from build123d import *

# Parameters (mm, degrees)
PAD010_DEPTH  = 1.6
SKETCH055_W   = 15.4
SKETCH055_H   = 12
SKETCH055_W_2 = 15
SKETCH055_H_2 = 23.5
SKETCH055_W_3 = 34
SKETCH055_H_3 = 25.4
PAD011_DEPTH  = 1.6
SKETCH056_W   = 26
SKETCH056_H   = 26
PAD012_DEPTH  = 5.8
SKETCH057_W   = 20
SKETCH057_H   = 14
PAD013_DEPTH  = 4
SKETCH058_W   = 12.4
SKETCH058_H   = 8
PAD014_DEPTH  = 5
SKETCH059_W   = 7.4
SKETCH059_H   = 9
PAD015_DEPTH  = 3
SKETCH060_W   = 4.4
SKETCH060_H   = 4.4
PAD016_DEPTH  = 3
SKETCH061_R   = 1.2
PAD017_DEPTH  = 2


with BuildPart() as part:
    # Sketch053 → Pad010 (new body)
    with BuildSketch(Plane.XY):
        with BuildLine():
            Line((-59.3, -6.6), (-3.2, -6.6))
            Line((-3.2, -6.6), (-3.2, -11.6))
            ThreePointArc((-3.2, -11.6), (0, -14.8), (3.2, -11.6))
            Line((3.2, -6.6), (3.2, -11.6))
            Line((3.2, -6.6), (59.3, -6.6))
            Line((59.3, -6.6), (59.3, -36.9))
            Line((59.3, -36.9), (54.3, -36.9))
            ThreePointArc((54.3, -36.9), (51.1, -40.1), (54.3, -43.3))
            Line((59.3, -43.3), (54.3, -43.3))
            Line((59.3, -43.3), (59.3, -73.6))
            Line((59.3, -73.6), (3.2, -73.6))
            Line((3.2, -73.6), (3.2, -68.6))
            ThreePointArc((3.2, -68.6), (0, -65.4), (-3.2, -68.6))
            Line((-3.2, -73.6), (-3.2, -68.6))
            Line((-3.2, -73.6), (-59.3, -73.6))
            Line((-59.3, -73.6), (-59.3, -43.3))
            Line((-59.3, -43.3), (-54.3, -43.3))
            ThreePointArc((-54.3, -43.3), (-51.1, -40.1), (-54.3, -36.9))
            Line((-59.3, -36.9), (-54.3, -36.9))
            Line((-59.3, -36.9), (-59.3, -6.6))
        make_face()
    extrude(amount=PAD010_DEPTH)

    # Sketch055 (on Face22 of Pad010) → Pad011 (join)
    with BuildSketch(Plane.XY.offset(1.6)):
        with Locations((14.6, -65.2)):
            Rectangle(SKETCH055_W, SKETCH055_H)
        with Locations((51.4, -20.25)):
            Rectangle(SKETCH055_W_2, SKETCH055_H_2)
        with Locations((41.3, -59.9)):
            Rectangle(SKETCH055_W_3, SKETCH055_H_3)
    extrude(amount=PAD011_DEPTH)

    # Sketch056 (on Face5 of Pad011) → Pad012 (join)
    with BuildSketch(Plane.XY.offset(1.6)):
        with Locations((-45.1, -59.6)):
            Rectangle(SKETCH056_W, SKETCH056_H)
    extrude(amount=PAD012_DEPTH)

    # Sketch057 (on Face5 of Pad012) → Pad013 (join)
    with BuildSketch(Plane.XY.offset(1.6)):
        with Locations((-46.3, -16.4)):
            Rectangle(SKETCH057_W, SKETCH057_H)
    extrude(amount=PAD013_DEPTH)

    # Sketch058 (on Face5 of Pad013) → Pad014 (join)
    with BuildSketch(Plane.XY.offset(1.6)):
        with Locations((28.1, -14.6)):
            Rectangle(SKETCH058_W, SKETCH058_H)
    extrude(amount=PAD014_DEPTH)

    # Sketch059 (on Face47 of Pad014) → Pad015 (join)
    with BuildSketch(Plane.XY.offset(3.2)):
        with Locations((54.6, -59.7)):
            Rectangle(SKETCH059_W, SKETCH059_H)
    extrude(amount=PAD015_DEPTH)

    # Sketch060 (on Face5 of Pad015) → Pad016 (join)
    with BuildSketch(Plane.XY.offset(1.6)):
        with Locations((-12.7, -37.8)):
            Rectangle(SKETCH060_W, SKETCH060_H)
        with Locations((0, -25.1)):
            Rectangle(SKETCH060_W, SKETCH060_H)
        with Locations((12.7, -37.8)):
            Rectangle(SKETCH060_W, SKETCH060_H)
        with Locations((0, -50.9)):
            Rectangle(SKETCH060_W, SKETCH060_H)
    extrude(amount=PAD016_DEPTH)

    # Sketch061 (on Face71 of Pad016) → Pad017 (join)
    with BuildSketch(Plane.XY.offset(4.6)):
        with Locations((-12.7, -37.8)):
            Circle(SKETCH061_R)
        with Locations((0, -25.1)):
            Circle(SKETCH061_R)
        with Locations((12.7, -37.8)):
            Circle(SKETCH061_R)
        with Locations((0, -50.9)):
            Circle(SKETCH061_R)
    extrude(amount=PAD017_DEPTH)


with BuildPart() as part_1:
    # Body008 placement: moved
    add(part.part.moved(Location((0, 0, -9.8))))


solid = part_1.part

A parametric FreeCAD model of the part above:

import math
import FreeCAD as App
import Part
import Sketcher

V = App.Vector
Q = App.Units.Quantity

doc = App.newDocument("Part")
body = doc.addObject("PartDesign::Body", "Body")

sketch1 = body.newObject("Sketcher::SketchObject", "Sketch")
sketch1.AttachmentSupport = (doc.getObject("XY_Plane"), [""])
sketch1.MapMode = "FlatFace"
sketch1.addGeometry([
    Part.LineSegment(V(-3.2, -6.6, 0), V(-59.3, -6.6, 0)),
    Part.LineSegment(V(-59.3, -6.6, 0), V(-59.3, -36.9, 0)),
    Part.LineSegment(V(-59.3, -36.9, 0), V(-54.3, -36.9, 0)),
    Part.ArcOfCircle(Part.Circle(V(-54.3, -40.1, 0), V(0, 0, 1), 3.2), math.radians(-90), math.radians(90)),
    Part.LineSegment(V(-54.3, -43.3, 0), V(-59.3, -43.3, 0)),
    Part.LineSegment(V(-59.3, -43.3, 0), V(-59.3, -73.6, 0)),
    Part.LineSegment(V(-59.3, -73.6, 0), V(-3.2, -73.6, 0)),
    Part.LineSegment(V(-3.2, -73.6, 0), V(-3.2, -68.6, 0)),
    Part.ArcOfCircle(Part.Circle(V(0, -68.6, 0), V(0, 0, 1), 3.2), math.radians(0), math.radians(180)),
    Part.LineSegment(V(3.2, -68.6, 0), V(3.2, -73.6, 0)),
    Part.LineSegment(V(3.2, -73.6, 0), V(59.3, -73.6, 0)),
    Part.LineSegment(V(59.3, -73.6, 0), V(59.3, -43.3, 0)),
    Part.LineSegment(V(59.3, -43.3, 0), V(54.3, -43.3, 0)),
    Part.ArcOfCircle(Part.Circle(V(54.3, -40.1, 0), V(0, 0, 1), 3.2), math.radians(90), math.radians(270)),
    Part.LineSegment(V(54.3, -36.9, 0), V(59.3, -36.9, 0)),
    Part.LineSegment(V(59.3, -36.9, 0), V(59.3, -6.6, 0)),
    Part.LineSegment(V(59.3, -6.6, 0), V(3.2, -6.6, 0)),
    Part.LineSegment(V(3.2, -6.6, 0), V(3.2, -11.6, 0)),
    Part.ArcOfCircle(Part.Circle(V(0, -11.6, 0), V(0, 0, 1), 3.2), math.radians(180), math.radians(360)),
    Part.LineSegment(V(-3.2, -11.6, 0), V(-3.2, -6.6, 0)),
], False)
sketch1.addConstraint([
    Sketcher.Constraint("Coincident", 0, 2, 1, 1),
    Sketcher.Constraint("Coincident", 1, 2, 2, 1),
    Sketcher.Constraint("Tangent", 2, 2, 3, 2),
    Sketcher.Constraint("Tangent", 3, 1, 4, 1),
    Sketcher.Constraint("Coincident", 4, 2, 5, 1),
    Sketcher.Constraint("Coincident", 5, 2, 6, 1),
    Sketcher.Constraint("Coincident", 6, 2, 7, 1),
    Sketcher.Constraint("Tangent", 7, 2, 8, 2),
    Sketcher.Constraint("Tangent", 8, 1, 9, 1),
    Sketcher.Constraint("Coincident", 9, 2, 10, 1),
    Sketcher.Constraint("Coincident", 10, 2, 11, 1),
    Sketcher.Constraint("Coincident", 11, 2, 12, 1),
    Sketcher.Constraint("Tangent", 12, 2, 13, 2),
    Sketcher.Constraint("Tangent", 13, 1, 14, 1),
    Sketcher.Constraint("Coincident", 14, 2, 15, 1),
    Sketcher.Constraint("Coincident", 15, 2, 16, 1),
    Sketcher.Constraint("Coincident", 16, 2, 17, 1),
    Sketcher.Constraint("Tangent", 17, 2, 18, 2),
    Sketcher.Constraint("Tangent", 18, 1, 19, 1),
    Sketcher.Constraint("Coincident", 19, 2, 0, 1),
    Sketcher.Constraint("Horizontal", 0),
    Sketcher.Constraint("Vertical", 1),
    Sketcher.Constraint("Horizontal", 2),
    Sketcher.Constraint("Horizontal", 4),
    Sketcher.Constraint("Vertical", 5),
    Sketcher.Constraint("Horizontal", 6),
    Sketcher.Constraint("Vertical", 7),
    Sketcher.Constraint("Vertical", 9),
    Sketcher.Constraint("Horizontal", 10),
    Sketcher.Constraint("Vertical", 11),
    Sketcher.Constraint("Horizontal", 12),
    Sketcher.Constraint("Horizontal", 14),
    Sketcher.Constraint("Vertical", 15),
    Sketcher.Constraint("Horizontal", 16),
    Sketcher.Constraint("Vertical", 17),
    Sketcher.Constraint("Vertical", 19),
    Sketcher.Constraint("Equal", 3, 8),
    Sketcher.Constraint("Equal", 8, 13),
    Sketcher.Constraint("Equal", 13, 18),
    Sketcher.Constraint("Symmetric", 3, 3, 13, 3, -2),
    Sketcher.Constraint("Symmetric", 6, 2, 9, 2, -2),
    Sketcher.Constraint("Symmetric", 0, 2, 15, 2, -2),
    Sketcher.Constraint("PointOnObject", 18, 3, -2),
    Sketcher.Constraint("Vertical", 1, 2, 4, 2),
    Sketcher.Constraint("Vertical", 11, 2, 14, 2),
    Sketcher.Constraint("Equal", 1, 5),
    Sketcher.Constraint("Equal", 14, 7),
    Sketcher.Constraint("Equal", 9, 17),
    Sketcher.Constraint("Radius", 3, Q("3.2 mm")),
    Sketcher.Constraint("DistanceX", 2, 1, 2, 2, Q("5 mm")),
    Sketcher.Constraint("DistanceX", 0, 2, 0, 1, Q("56.1 mm")),
    Sketcher.Constraint("DistanceY", 1, 2, 1, 1, Q("30.3 mm")),
    Sketcher.Constraint("DistanceY", 3, 3, -1, 1, Q("40.1 mm")),
])
pad1 = body.newObject("PartDesign::Pad", "Pad")
pad1.Profile = sketch1
pad1.Length = 1.6

sketch2 = body.newObject("Sketcher::SketchObject", "Sketch001")
sketch2.AttachmentSupport = (doc.getObject("XY_Plane"), [""])
sketch2.MapMode = "FlatFace"
sketch2.AttachmentOffset = App.Placement(V(0, 0, 1.6), App.Rotation())
sketch2.addGeometry([
    Part.LineSegment(V(7, -59, 0), V(7, -71, 0)),
    Part.LineSegment(V(7, -71, 0), V(22, -71, 0)),
    Part.LineSegment(V(22, -71, 0), V(22, -59, 0)),
    Part.LineSegment(V(22, -59, 0), V(7, -59, 0)),
    Part.LineSegment(V(44, -8, 0), V(44, -32, 0)),
    Part.LineSegment(V(44, -32, 0), V(59, -32, 0)),
    Part.LineSegment(V(59, -32, 0), V(59, -8, 0)),
    Part.LineSegment(V(59, -8, 0), V(44, -8, 0)),
    Part.LineSegment(V(24, -47, 0), V(24, -73, 0)),
    Part.LineSegment(V(24, -73, 0), V(58, -73, 0)),
    Part.LineSegment(V(58, -73, 0), V(58, -47, 0)),
    Part.LineSegment(V(58, -47, 0), V(24, -47, 0)),
], False)
sketch2.addConstraint([
    Sketcher.Constraint("Coincident", 0, 2, 1, 1),
    Sketcher.Constraint("Coincident", 1, 2, 2, 1),
    Sketcher.Constraint("Coincident", 2, 2, 3, 1),
    Sketcher.Constraint("Coincident", 3, 2, 0, 1),
    Sketcher.Constraint("Coincident", 4, 2, 5, 1),
    Sketcher.Constraint("Coincident", 5, 2, 6, 1),
    Sketcher.Constraint("Coincident", 6, 2, 7, 1),
    Sketcher.Constraint("Coincident", 7, 2, 4, 1),
    Sketcher.Constraint("Coincident", 8, 2, 9, 1),
    Sketcher.Constraint("Coincident", 9, 2, 10, 1),
    Sketcher.Constraint("Coincident", 10, 2, 11, 1),
    Sketcher.Constraint("Coincident", 11, 2, 8, 1),
    Sketcher.Constraint("Vertical", 0),
    Sketcher.Constraint("Horizontal", 1),
    Sketcher.Constraint("Vertical", 2),
    Sketcher.Constraint("Horizontal", 3),
    Sketcher.Constraint("Vertical", 4),
    Sketcher.Constraint("Horizontal", 5),
    Sketcher.Constraint("Vertical", 6),
    Sketcher.Constraint("Horizontal", 7),
    Sketcher.Constraint("Vertical", 8),
    Sketcher.Constraint("Horizontal", 9),
    Sketcher.Constraint("Vertical", 10),
    Sketcher.Constraint("Horizontal", 11),
    Sketcher.Constraint("DistanceX", 5, 1, 5, 2, Q("15 mm")),
    Sketcher.Constraint("DistanceX", 9, 1, 9, 2, Q("34 mm")),
    Sketcher.Constraint("DistanceY", 0, 2, 0, 1, Q("12 mm")),
    Sketcher.Constraint("DistanceX", 1, 1, 1, 2, Q("15.4 mm")),
    Sketcher.Constraint("DistanceY", 4, 2, 4, 1, Q("23.5 mm")),
    Sketcher.Constraint("DistanceY", 8, 2, 8, 1, Q("25.4 mm")),
    Sketcher.Constraint("DistanceY", 4, 2, -1, 1, Q("32 mm")),
    Sketcher.Constraint("DistanceX", 3, 2, 4, 2, Q("37 mm")),
    Sketcher.Constraint("DistanceX", 1, 2, 8, 2, Q("2 mm")),
    Sketcher.Constraint("DistanceY", 2, 2, 10, 2, Q("12 mm")),
    Sketcher.Constraint("DistanceX", -1, 1, 0, 2, Q("6.9 mm")),
    Sketcher.Constraint("DistanceY", 0, 2, -1, 1, Q("71.2 mm")),
])
pad2 = body.newObject("PartDesign::Pad", "Pad001")
pad2.Profile = sketch2
pad2.Length = 1.6

sketch3 = body.newObject("Sketcher::SketchObject", "Sketch002")
sketch3.AttachmentSupport = (doc.getObject("XY_Plane"), [""])
sketch3.MapMode = "FlatFace"
sketch3.AttachmentOffset = App.Placement(V(0, 0, 1.6), App.Rotation())
sketch3.addGeometry([
    Part.LineSegment(V(-58, -47, 0), V(-58, -73, 0)),
    Part.LineSegment(V(-58, -73, 0), V(-32, -73, 0)),
    Part.LineSegment(V(-32, -73, 0), V(-32, -47, 0)),
    Part.LineSegment(V(-32, -47, 0), V(-58, -47, 0)),
], False)
sketch3.addConstraint([
    Sketcher.Constraint("Coincident", 0, 2, 1, 1),
    Sketcher.Constraint("Coincident", 1, 2, 2, 1),
    Sketcher.Constraint("Coincident", 2, 2, 3, 1),
    Sketcher.Constraint("Coincident", 3, 2, 0, 1),
    Sketcher.Constraint("Vertical", 0),
    Sketcher.Constraint("Horizontal", 1),
    Sketcher.Constraint("Vertical", 2),
    Sketcher.Constraint("Horizontal", 3),
    Sketcher.Constraint("Equal", 3, 0),
    Sketcher.Constraint("DistanceX", 1, 1, 1, 2, Q("26 mm")),
    Sketcher.Constraint("DistanceX", 0, 2, -1, 1, Q("58.1 mm")),
    Sketcher.Constraint("DistanceY", 0, 2, -1, 1, Q("72.6 mm")),
])
pad3 = body.newObject("PartDesign::Pad", "Pad002")
pad3.Profile = sketch3
pad3.Length = 5.8

sketch4 = body.newObject("Sketcher::SketchObject", "Sketch003")
sketch4.AttachmentSupport = (doc.getObject("XY_Plane"), [""])
sketch4.MapMode = "FlatFace"
sketch4.AttachmentOffset = App.Placement(V(0, 0, 1.6), App.Rotation())
sketch4.addGeometry([
    Part.LineSegment(V(-56, -9, 0), V(-56, -23, 0)),
    Part.LineSegment(V(-56, -23, 0), V(-36, -23, 0)),
    Part.LineSegment(V(-36, -23, 0), V(-36, -9, 0)),
    Part.LineSegment(V(-36, -9, 0), V(-56, -9, 0)),
], False)
sketch4.addConstraint([
    Sketcher.Constraint("Coincident", 0, 2, 1, 1),
    Sketcher.Constraint("Coincident", 1, 2, 2, 1),
    Sketcher.Constraint("Coincident", 2, 2, 3, 1),
    Sketcher.Constraint("Coincident", 3, 2, 0, 1),
    Sketcher.Constraint("Vertical", 0),
    Sketcher.Constraint("Horizontal", 1),
    Sketcher.Constraint("Vertical", 2),
    Sketcher.Constraint("Horizontal", 3),
    Sketcher.Constraint("DistanceX", 1, 1, 1, 2, Q("20 mm")),
    Sketcher.Constraint("DistanceY", 0, 2, 0, 1, Q("14 mm")),
    Sketcher.Constraint("DistanceX", 0, 2, -1, 1, Q("56.3 mm")),
    Sketcher.Constraint("DistanceY", 0, 2, -1, 1, Q("23.4 mm")),
])
pad4 = body.newObject("PartDesign::Pad", "Pad003")
pad4.Profile = sketch4
pad4.Length = 4

sketch5 = body.newObject("Sketcher::SketchObject", "Sketch004")
sketch5.AttachmentSupport = (doc.getObject("XY_Plane"), [""])
sketch5.MapMode = "FlatFace"
sketch5.AttachmentOffset = App.Placement(V(0, 0, 1.6), App.Rotation())
sketch5.addGeometry([
    Part.LineSegment(V(22, -11, 0), V(22, -19, 0)),
    Part.LineSegment(V(22, -19, 0), V(34, -19, 0)),
    Part.LineSegment(V(34, -19, 0), V(34, -11, 0)),
    Part.LineSegment(V(34, -11, 0), V(22, -11, 0)),
], False)
sketch5.addConstraint([
    Sketcher.Constraint("Coincident", 0, 2, 1, 1),
    Sketcher.Constraint("Coincident", 1, 2, 2, 1),
    Sketcher.Constraint("Coincident", 2, 2, 3, 1),
    Sketcher.Constraint("Coincident", 3, 2, 0, 1),
    Sketcher.Constraint("Vertical", 0),
    Sketcher.Constraint("Horizontal", 1),
    Sketcher.Constraint("Vertical", 2),
    Sketcher.Constraint("Horizontal", 3),
    Sketcher.Constraint("DistanceY", 0, 2, 0, 1, Q("8 mm")),
    Sketcher.Constraint("DistanceX", 1, 1, 1, 2, Q("12.4 mm")),
    Sketcher.Constraint("DistanceX", -1, 1, 0, 2, Q("21.9 mm")),
    Sketcher.Constraint("DistanceY", 0, 2, -1, 1, Q("18.6 mm")),
])
pad5 = body.newObject("PartDesign::Pad", "Pad004")
pad5.Profile = sketch5
pad5.Length = 5

sketch6 = body.newObject("Sketcher::SketchObject", "Sketch005")
sketch6.AttachmentSupport = (doc.getObject("XY_Plane"), [""])
sketch6.MapMode = "FlatFace"
sketch6.AttachmentOffset = App.Placement(V(0, 0, 3.2), App.Rotation())
sketch6.addGeometry([
    Part.LineSegment(V(51, -55, 0), V(51, -64, 0)),
    Part.LineSegment(V(51, -64, 0), V(58, -64, 0)),
    Part.LineSegment(V(58, -64, 0), V(58, -55, 0)),
    Part.LineSegment(V(58, -55, 0), V(51, -55, 0)),
], False)
sketch6.addConstraint([
    Sketcher.Constraint("Coincident", 0, 2, 1, 1),
    Sketcher.Constraint("Coincident", 1, 2, 2, 1),
    Sketcher.Constraint("Coincident", 2, 2, 3, 1),
    Sketcher.Constraint("Coincident", 3, 2, 0, 1),
    Sketcher.Constraint("Vertical", 0),
    Sketcher.Constraint("Horizontal", 1),
    Sketcher.Constraint("Vertical", 2),
    Sketcher.Constraint("Horizontal", 3),
    Sketcher.Constraint("DistanceY", 0, 2, 0, 1, Q("9 mm")),
    Sketcher.Constraint("DistanceX", 1, 1, 1, 2, Q("7.4 mm")),
    Sketcher.Constraint("DistanceX", -1, 1, 0, 2, Q("50.9 mm")),
    Sketcher.Constraint("DistanceY", 0, 2, -1, 1, Q("64.2 mm")),
])
pad6 = body.newObject("PartDesign::Pad", "Pad005")
pad6.Profile = sketch6
pad6.Length = 3

sketch7 = body.newObject("Sketcher::SketchObject", "Sketch006")
sketch7.AttachmentSupport = (doc.getObject("XY_Plane"), [""])
sketch7.MapMode = "FlatFace"
sketch7.AttachmentOffset = App.Placement(V(0, 0, 1.6), App.Rotation())
sketch7.addGeometry([
    Part.LineSegment(V(-14.9, -35.6, 0), V(-14.9, -40, 0)),
    Part.LineSegment(V(-14.9, -40, 0), V(-10.5, -40, 0)),
    Part.LineSegment(V(-10.5, -40, 0), V(-10.5, -35.6, 0)),
    Part.LineSegment(V(-10.5, -35.6, 0), V(-14.9, -35.6, 0)),
    Part.LineSegment(V(-2.2, -22.9, 0), V(-2.2, -27.3, 0)),
    Part.LineSegment(V(-2.2, -27.3, 0), V(2.2, -27.3, 0)),
    Part.LineSegment(V(2.2, -27.3, 0), V(2.2, -22.9, 0)),
    Part.LineSegment(V(2.2, -22.9, 0), V(-2.2, -22.9, 0)),
    Part.LineSegment(V(10.5, -35.6, 0), V(10.5, -40, 0)),
    Part.LineSegment(V(10.5, -40, 0), V(14.9, -40, 0)),
    Part.LineSegment(V(14.9, -40, 0), V(14.9, -35.6, 0)),
    Part.LineSegment(V(14.9, -35.6, 0), V(10.5, -35.6, 0)),
    Part.LineSegment(V(-2.2, -48.7, 0), V(-2.2, -53.1, 0)),
    Part.LineSegment(V(-2.2, -53.1, 0), V(2.2, -53.1, 0)),
    Part.LineSegment(V(2.2, -53.1, 0), V(2.2, -48.7, 0)),
    Part.LineSegment(V(2.2, -48.7, 0), V(-2.2, -48.7, 0)),
], False)
sketch7.addConstraint([
    Sketcher.Constraint("Coincident", 0, 2, 1, 1),
    Sketcher.Constraint("Coincident", 1, 2, 2, 1),
    Sketcher.Constraint("Coincident", 2, 2, 3, 1),
    Sketcher.Constraint("Coincident", 3, 2, 0, 1),
    Sketcher.Constraint("Coincident", 4, 2, 5, 1),
    Sketcher.Constraint("Coincident", 5, 2, 6, 1),
    Sketcher.Constraint("Coincident", 6, 2, 7, 1),
    Sketcher.Constraint("Coincident", 7, 2, 4, 1),
    Sketcher.Constraint("Coincident", 8, 2, 9, 1),
    Sketcher.Constraint("Coincident", 9, 2, 10, 1),
    Sketcher.Constraint("Coincident", 10, 2, 11, 1),
    Sketcher.Constraint("Coincident", 11, 2, 8, 1),
    Sketcher.Constraint("Coincident", 12, 2, 13, 1),
    Sketcher.Constraint("Coincident", 13, 2, 14, 1),
    Sketcher.Constraint("Coincident", 14, 2, 15, 1),
    Sketcher.Constraint("Coincident", 15, 2, 12, 1),
    Sketcher.Constraint("Vertical", 0),
    Sketcher.Constraint("Horizontal", 1),
    Sketcher.Constraint("Vertical", 2),
    Sketcher.Constraint("Horizontal", 3),
    Sketcher.Constraint("Vertical", 4),
    Sketcher.Constraint("Horizontal", 5),
    Sketcher.Constraint("Vertical", 6),
    Sketcher.Constraint("Horizontal", 7),
    Sketcher.Constraint("Vertical", 8),
    Sketcher.Constraint("Horizontal", 9),
    Sketcher.Constraint("Vertical", 10),
    Sketcher.Constraint("Horizontal", 11),
    Sketcher.Constraint("Vertical", 12),
    Sketcher.Constraint("Horizontal", 13),
    Sketcher.Constraint("Vertical", 14),
    Sketcher.Constraint("Horizontal", 15),
    Sketcher.Constraint("Symmetric", 1, 2, 8, 2, -2),
    Sketcher.Constraint("Symmetric", 3, 2, 10, 2, -2),
    Sketcher.Constraint("Vertical", 7, 2, 12, 2),
    Sketcher.Constraint("Vertical", 6, 2, 13, 2),
    Sketcher.Constraint("Equal", 3, 5),
    Sketcher.Constraint("Equal", 15, 0),
    Sketcher.Constraint("Equal", 2, 4),
    Sketcher.Constraint("Equal", 10, 12),
    Sketcher.Constraint("DistanceX", 1, 1, 1, 2, Q("4.4 mm")),
    Sketcher.Constraint("DistanceY", 0, 2, -1, 1, Q("40 mm")),
    Sketcher.Constraint("DistanceX", 1, 2, 8, 2, Q("21 mm")),
    Sketcher.Constraint("DistanceX", 4, 2, -1, 1, Q("2.2 mm")),
    Sketcher.Constraint("DistanceY", 4, 2, -1, 1, Q("27.3 mm")),
    Sketcher.Constraint("DistanceY", 12, 2, -1, 1, Q("53.1 mm")),
])
pad7 = body.newObject("PartDesign::Pad", "Pad006")
pad7.Profile = sketch7
pad7.Length = 3

sketch8 = body.newObject("Sketcher::SketchObject", "Sketch007")
sketch8.AttachmentSupport = (doc.getObject("XY_Plane"), [""])
sketch8.MapMode = "FlatFace"
sketch8.AttachmentOffset = App.Placement(V(0, 0, 4.6), App.Rotation())
sketch8.addGeometry([
    Part.Circle(V(-12.7, -37.8, 0), V(0, 0, 1), 1.2),
    Part.Circle(V(0, -25.1, 0), V(0, 0, 1), 1.2),
    Part.Circle(V(12.7, -37.8, 0), V(0, 0, 1), 1.2),
    Part.Circle(V(0, -50.9, 0), V(0, 0, 1), 1.2),
], False)
sketch8.addConstraint([
    Sketcher.Constraint("Equal", 0, 1),
    Sketcher.Constraint("Equal", 1, 2),
    Sketcher.Constraint("Equal", 2, 3),
    Sketcher.Constraint("Symmetric", 0, 3, 2, 3, -2),
    Sketcher.Constraint("PointOnObject", 1, 3, -2),
    Sketcher.Constraint("PointOnObject", 3, 3, -2),
    Sketcher.Constraint("Diameter", 0, Q("2.4 mm")),
    Sketcher.Constraint("DistanceX", 0, 3, -1, 1, Q("12.7 mm")),
    Sketcher.Constraint("DistanceY", 0, 3, -1, 1, Q("37.8 mm")),
    Sketcher.Constraint("DistanceY", 1, 3, -1, 1, Q("25.1 mm")),
    Sketcher.Constraint("DistanceY", 3, 3, -1, 1, Q("50.9 mm")),
])
pad8 = body.newObject("PartDesign::Pad", "Pad007")
pad8.Profile = sketch8
pad8.Length = 2
body2 = doc.addObject("PartDesign::Body", "Body001")
doc.recompute()

body.Placement = App.Placement(V(0, 0, -9.8), App.Rotation(V(0, 0, 1), 0))
boolean = body2.newObject("PartDesign::Boolean", "Boolean")
boolean.Type = "Fuse"
boolean.addObjects([body])

doc.recompute()
